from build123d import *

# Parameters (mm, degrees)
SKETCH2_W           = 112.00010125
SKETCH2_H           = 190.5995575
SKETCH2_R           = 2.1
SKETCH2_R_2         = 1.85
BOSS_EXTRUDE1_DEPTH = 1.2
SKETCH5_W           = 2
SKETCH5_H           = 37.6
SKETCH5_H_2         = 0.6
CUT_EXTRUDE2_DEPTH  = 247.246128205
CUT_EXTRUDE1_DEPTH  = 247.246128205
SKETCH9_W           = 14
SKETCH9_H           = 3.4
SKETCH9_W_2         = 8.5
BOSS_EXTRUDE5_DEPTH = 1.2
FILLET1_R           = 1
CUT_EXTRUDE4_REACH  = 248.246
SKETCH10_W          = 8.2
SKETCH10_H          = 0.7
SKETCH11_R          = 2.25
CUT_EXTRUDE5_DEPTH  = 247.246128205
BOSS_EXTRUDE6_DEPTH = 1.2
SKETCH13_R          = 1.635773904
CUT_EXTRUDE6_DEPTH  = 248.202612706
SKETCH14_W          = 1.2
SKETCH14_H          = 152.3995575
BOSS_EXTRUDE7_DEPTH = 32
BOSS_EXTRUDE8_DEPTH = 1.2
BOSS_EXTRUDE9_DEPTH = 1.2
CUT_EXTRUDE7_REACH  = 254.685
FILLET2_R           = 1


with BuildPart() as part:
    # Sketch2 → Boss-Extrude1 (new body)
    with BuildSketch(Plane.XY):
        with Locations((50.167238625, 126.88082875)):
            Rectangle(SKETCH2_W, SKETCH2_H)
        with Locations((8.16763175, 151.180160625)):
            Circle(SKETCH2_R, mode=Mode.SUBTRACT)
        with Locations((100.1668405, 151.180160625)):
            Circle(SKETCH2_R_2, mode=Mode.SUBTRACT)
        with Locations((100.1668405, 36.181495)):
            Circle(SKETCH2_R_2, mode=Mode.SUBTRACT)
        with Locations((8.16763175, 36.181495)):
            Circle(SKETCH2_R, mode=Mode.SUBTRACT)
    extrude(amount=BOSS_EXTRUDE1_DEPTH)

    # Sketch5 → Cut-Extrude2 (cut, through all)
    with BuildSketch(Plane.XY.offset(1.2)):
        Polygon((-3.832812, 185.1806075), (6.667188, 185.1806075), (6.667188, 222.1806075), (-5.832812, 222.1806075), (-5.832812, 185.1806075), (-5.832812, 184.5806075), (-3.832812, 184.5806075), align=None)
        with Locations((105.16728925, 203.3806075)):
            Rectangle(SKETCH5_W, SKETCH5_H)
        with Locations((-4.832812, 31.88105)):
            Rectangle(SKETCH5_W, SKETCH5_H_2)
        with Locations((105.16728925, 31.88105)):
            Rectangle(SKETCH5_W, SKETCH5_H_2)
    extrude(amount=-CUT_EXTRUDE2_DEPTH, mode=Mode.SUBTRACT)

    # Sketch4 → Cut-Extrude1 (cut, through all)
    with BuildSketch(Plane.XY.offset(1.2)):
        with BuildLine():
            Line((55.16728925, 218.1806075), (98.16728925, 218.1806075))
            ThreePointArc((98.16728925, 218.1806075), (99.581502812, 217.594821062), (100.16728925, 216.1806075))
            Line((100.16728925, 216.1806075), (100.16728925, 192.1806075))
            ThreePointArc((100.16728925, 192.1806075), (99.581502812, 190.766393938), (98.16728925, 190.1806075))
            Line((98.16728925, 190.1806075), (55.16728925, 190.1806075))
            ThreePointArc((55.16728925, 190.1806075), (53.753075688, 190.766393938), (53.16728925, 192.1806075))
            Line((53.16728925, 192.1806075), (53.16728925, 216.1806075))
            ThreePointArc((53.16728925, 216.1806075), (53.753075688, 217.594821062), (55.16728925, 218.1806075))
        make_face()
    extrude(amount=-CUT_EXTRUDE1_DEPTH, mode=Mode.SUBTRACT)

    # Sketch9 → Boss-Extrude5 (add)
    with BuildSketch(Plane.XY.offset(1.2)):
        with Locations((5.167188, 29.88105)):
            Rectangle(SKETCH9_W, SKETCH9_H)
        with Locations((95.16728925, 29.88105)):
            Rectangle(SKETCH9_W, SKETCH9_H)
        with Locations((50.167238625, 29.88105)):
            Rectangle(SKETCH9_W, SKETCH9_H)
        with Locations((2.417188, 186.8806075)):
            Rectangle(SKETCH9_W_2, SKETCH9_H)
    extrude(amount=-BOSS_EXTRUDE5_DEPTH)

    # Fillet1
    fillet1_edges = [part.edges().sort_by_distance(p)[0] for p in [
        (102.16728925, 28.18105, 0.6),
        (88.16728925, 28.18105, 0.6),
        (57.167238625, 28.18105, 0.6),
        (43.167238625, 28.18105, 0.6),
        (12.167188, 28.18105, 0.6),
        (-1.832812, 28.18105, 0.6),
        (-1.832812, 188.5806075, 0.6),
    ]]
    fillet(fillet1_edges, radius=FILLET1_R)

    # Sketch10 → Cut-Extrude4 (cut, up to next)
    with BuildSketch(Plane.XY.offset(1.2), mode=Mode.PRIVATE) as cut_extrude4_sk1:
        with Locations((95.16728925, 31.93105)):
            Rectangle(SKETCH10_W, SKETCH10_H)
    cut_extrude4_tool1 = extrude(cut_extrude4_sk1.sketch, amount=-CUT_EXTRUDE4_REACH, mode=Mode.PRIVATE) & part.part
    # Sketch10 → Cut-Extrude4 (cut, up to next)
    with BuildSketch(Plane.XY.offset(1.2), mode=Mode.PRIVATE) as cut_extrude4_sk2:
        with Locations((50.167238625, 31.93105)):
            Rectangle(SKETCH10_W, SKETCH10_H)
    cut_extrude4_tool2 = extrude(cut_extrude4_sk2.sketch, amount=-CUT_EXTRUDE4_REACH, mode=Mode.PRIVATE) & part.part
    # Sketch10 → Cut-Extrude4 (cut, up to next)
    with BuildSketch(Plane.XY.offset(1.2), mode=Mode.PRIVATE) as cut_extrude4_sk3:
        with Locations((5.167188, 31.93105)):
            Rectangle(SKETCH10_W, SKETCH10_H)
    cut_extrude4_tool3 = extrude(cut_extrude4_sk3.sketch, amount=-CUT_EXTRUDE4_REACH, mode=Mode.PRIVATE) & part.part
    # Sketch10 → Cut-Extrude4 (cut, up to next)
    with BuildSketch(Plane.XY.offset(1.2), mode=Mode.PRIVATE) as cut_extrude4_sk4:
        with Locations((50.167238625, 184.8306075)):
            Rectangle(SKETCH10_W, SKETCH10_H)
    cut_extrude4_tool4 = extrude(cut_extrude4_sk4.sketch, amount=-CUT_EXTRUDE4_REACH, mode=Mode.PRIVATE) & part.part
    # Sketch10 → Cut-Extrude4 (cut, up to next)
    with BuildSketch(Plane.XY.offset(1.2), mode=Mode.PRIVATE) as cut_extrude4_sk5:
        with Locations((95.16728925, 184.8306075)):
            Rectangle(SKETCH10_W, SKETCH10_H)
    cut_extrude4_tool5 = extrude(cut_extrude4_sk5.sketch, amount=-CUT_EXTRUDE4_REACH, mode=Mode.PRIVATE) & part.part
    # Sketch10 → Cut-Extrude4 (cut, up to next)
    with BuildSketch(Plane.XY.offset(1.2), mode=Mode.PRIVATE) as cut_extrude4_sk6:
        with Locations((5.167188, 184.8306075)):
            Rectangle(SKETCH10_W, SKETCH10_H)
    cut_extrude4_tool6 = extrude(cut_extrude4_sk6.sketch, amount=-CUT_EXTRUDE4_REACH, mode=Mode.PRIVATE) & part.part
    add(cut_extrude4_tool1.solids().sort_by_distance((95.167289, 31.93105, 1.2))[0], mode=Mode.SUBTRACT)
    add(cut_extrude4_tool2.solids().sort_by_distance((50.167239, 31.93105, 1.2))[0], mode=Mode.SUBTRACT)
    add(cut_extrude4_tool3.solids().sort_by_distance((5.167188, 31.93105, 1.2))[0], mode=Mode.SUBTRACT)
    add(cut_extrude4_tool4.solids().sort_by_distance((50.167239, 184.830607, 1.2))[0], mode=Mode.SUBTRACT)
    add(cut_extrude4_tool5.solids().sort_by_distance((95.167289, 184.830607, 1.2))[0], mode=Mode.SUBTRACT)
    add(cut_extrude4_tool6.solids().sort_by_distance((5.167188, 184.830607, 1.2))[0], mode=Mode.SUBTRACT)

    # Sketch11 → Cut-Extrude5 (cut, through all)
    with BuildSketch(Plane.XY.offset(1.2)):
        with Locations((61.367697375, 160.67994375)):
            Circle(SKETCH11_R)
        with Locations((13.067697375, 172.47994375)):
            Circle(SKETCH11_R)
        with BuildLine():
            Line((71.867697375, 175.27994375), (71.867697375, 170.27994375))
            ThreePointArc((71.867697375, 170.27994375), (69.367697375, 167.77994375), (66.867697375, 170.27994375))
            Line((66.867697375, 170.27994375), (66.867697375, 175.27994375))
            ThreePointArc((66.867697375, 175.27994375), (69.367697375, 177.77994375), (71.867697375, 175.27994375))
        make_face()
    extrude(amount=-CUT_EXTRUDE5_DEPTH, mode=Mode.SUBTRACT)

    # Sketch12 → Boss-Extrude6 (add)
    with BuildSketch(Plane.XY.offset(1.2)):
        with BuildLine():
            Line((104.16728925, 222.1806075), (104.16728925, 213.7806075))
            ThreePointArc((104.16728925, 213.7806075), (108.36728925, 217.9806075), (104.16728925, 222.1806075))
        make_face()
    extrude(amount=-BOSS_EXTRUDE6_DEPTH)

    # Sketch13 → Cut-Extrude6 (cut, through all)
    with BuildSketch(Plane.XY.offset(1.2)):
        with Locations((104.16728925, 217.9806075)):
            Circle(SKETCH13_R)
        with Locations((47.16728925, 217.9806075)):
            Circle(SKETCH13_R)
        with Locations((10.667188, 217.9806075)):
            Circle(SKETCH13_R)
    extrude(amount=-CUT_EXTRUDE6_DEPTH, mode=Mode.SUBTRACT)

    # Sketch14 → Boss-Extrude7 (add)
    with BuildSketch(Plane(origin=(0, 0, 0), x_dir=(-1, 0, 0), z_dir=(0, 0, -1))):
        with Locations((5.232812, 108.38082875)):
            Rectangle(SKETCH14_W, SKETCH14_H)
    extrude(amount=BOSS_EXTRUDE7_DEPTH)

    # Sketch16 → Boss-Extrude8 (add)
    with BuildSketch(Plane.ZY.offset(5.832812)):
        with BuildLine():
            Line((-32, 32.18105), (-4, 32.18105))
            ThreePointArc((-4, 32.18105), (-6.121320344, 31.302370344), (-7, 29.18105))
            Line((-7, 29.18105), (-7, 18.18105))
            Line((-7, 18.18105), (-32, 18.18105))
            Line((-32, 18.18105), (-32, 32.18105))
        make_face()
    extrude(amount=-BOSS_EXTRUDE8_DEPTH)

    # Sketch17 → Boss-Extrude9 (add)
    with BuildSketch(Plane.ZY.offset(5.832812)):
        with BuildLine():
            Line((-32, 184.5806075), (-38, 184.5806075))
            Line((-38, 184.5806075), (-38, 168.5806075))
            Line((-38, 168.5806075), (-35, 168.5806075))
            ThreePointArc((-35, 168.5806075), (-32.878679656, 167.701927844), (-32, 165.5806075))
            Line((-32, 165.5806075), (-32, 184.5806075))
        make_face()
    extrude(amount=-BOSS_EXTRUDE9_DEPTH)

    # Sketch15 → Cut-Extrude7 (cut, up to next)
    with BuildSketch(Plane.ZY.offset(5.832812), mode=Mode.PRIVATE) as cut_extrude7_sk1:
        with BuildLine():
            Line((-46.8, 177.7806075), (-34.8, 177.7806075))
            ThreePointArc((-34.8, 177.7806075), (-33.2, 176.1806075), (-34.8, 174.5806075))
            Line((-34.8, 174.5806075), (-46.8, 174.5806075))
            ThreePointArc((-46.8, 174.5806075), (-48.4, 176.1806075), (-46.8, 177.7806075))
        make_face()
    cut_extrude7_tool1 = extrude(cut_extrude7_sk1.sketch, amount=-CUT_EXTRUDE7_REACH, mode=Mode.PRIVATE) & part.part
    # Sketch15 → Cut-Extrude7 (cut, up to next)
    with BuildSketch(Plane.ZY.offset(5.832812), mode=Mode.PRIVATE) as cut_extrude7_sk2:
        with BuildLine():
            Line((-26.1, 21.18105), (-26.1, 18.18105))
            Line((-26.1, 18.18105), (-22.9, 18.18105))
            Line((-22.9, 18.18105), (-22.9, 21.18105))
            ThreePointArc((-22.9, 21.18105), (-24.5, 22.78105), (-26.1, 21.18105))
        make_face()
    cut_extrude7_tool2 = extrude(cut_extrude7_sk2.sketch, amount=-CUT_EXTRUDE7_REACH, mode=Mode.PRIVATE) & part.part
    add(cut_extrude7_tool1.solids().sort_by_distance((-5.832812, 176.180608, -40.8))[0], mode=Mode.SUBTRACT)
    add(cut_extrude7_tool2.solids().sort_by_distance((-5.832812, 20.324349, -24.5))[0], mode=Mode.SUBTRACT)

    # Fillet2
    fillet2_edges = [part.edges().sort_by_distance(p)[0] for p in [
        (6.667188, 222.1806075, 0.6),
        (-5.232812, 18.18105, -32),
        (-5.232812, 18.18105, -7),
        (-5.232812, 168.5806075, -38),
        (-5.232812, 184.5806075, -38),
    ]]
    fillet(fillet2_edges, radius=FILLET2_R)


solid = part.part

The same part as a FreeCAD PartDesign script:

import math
import FreeCAD as App
import Part
import Sketcher
from FreeCAD import Vector
Q = App.Units.Quantity


def edges_at(feature, points):
    """Names of the edges that pass closest to the given points."""
    edges = feature.Shape.Edges
    near = lambda p: min(range(len(edges)), key=lambda i: edges[i].distToShape(Part.Vertex(*p))[0])
    return sorted({f"Edge{near(p) + 1}" for p in points})

doc = App.newDocument("Part")
body = doc.addObject("PartDesign::Body", "Body")

sketch1 = doc.addObject("Sketcher::SketchObject", "Sketch")
body.addObject(sketch1)
sketch1.AttachmentSupport = (doc.XY_Plane, [""])
sketch1.MapMode = "FlatFace"
sketch1.addGeometry([
    Part.LineSegment(Vector(-5.8, 222.2, 0), Vector(-5.8, 31.6, 0)),
    Part.LineSegment(Vector(-5.8, 31.6, 0), Vector(106.2, 31.6, 0)),
    Part.LineSegment(Vector(106.2, 31.6, 0), Vector(106.2, 222.2, 0)),
    Part.LineSegment(Vector(106.2, 222.2, 0), Vector(-5.8, 222.2, 0)),
    Part.Circle(Vector(8.2, 36.2, 0), Vector(0, 0, 1), 2.1),
    Part.Circle(Vector(100.2, 36.2, 0), Vector(0, 0, 1), 1.9),
    Part.Circle(Vector(8.2, 151.2, 0), Vector(0, 0, 1), 2.1),
    Part.Circle(Vector(100.2, 151.2, 0), Vector(0, 0, 1), 1.9),
], False)
sketch1.addConstraint([
    Sketcher.Constraint("Coincident", 0, 2, 1, 1),
    Sketcher.Constraint("Coincident", 1, 2, 2, 1),
    Sketcher.Constraint("Coincident", 2, 2, 3, 1),
    Sketcher.Constraint("Coincident", 3, 2, 0, 1),
    Sketcher.Constraint("Vertical", 0),
    Sketcher.Constraint("Horizontal", 1),
    Sketcher.Constraint("Vertical", 2),
    Sketcher.Constraint("Horizontal", 3),
    Sketcher.Constraint("Equal", 4, 6),
    Sketcher.Constraint("Equal", 5, 7),
    Sketcher.Constraint("Horizontal", 4, 3, 5, 3),
    Sketcher.Constraint("Horizontal", 6, 3, 7, 3),
    Sketcher.Constraint("Vertical", 4, 3, 6, 3),
    Sketcher.Constraint("Vertical", 5, 3, 7, 3),
    Sketcher.Constraint("Diameter", 4, Q("4.2 mm")),
    Sketcher.Constraint("Diameter", 5, Q("3.7 mm")),
    Sketcher.Constraint("DistanceX", 1, 1, 1, 2, Q("112.000101 mm")),
    Sketcher.Constraint("DistanceY", 0, 2, 0, 1, Q("190.599558 mm")),
    Sketcher.Constraint("DistanceX", -1, 1, 4, 3, Q("8.167632 mm")),
    Sketcher.Constraint("DistanceX", -1, 1, 5, 3, Q("100.166841 mm")),
    Sketcher.Constraint("DistanceY", -1, 1, 6, 3, Q("151.180161 mm")),
    Sketcher.Constraint("DistanceX", 0, 2, -1, 1, Q("5.832812 mm")),
    Sketcher.Constraint("DistanceY", -1, 1, 0, 2, Q("31.58105 mm")),
    Sketcher.Constraint("DistanceY", -1, 1, 4, 3, Q("36.181495 mm")),
])
pad1 = doc.addObject("PartDesign::Pad", "Pad")
body.addObject(pad1)
pad1.Profile = sketch1
pad1.Length = 1.2

sketch2 = doc.addObject("Sketcher::SketchObject", "Sketch001")
body.addObject(sketch2)
sketch2.AttachmentSupport = (doc.XY_Plane, [""])
sketch2.MapMode = "FlatFace"
sketch2.AttachmentOffset = App.Placement(Vector(0, 0, 1.2), App.Rotation())
sketch2.addGeometry([
    Part.LineSegment(Vector(-3.8, 185.2, 0), Vector(6.7, 185.2, 0)),
    Part.LineSegment(Vector(6.7, 185.2, 0), Vector(6.7, 222.2, 0)),
    Part.LineSegment(Vector(6.7, 222.2, 0), Vector(-5.8, 222.2, 0)),
    Part.LineSegment(Vector(-5.8, 222.2, 0), Vector(-5.8, 184.6, 0)),
    Part.LineSegment(Vector(-5.8, 184.6, 0), Vector(-3.8, 184.6, 0)),
    Part.LineSegment(Vector(-3.8, 184.6, 0), Vector(-3.8, 185.2, 0)),
    Part.LineSegment(Vector(104.2, 222.2, 0), Vector(104.2, 184.6, 0)),
    Part.LineSegment(Vector(104.2, 184.6, 0), Vector(106.2, 184.6, 0)),
    Part.LineSegment(Vector(106.2, 184.6, 0), Vector(106.2, 222.2, 0)),
    Part.LineSegment(Vector(106.2, 222.2, 0), Vector(104.2, 222.2, 0)),
    Part.LineSegment(Vector(-5.8, 32.2, 0), Vector(-5.8, 31.6, 0)),
    Part.LineSegment(Vector(-5.8, 31.6, 0), Vector(-3.8, 31.6, 0)),
    Part.LineSegment(Vector(-3.8, 31.6, 0), Vector(-3.8, 32.2, 0)),
    Part.LineSegment(Vector(-3.8, 32.2, 0), Vector(-5.8, 32.2, 0)),
    Part.LineSegment(Vector(104.2, 32.2, 0), Vector(104.2, 31.6, 0)),
    Part.LineSegment(Vector(104.2, 31.6, 0), Vector(106.2, 31.6, 0)),
    Part.LineSegment(Vector(106.2, 31.6, 0), Vector(106.2, 32.2, 0)),
    Part.LineSegment(Vector(106.2, 32.2, 0), Vector(104.2, 32.2, 0)),
], False)
sketch2.addConstraint([
    Sketcher.Constraint("Coincident", 0, 2, 1, 1),
    Sketcher.Constraint("Coincident", 1, 2, 2, 1),
    Sketcher.Constraint("Coincident", 2, 2, 3, 1),
    Sketcher.Constraint("Coincident", 3, 2, 4, 1),
    Sketcher.Constraint("Coincident", 4, 2, 5, 1),
    Sketcher.Constraint("Coincident", 5, 2, 0, 1),
    Sketcher.Constraint("Coincident", 6, 2, 7, 1),
    Sketcher.Constraint("Coincident", 7, 2, 8, 1),
    Sketcher.Constraint("Coincident", 8, 2, 9, 1),
    Sketcher.Constraint("Coincident", 9, 2, 6, 1),
    Sketcher.Constraint("Coincident", 10, 2, 11, 1),
    Sketcher.Constraint("Coincident", 11, 2, 12, 1),
    Sketcher.Constraint("Coincident", 12, 2, 13, 1),
    Sketcher.Constraint("Coincident", 13, 2, 10, 1),
    Sketcher.Constraint("Coincident", 14, 2, 15, 1),
    Sketcher.Constraint("Coincident", 15, 2, 16, 1),
    Sketcher.Constraint("Coincident", 16, 2, 17, 1),
    Sketcher.Constraint("Coincident", 17, 2, 14, 1),
    Sketcher.Constraint("Horizontal", 0),
    Sketcher.Constraint("Vertical", 1),
    Sketcher.Constraint("Horizontal", 2),
    Sketcher.Constraint("Vertical", 3),
    Sketcher.Constraint("Horizontal", 4),
    Sketcher.Constraint("Vertical", 5),
    Sketcher.Constraint("Vertical", 6),
    Sketcher.Constraint("Horizontal", 7),
    Sketcher.Constraint("Vertical", 8),
    Sketcher.Constraint("Horizontal", 9),
    Sketcher.Constraint("Vertical", 10),
    Sketcher.Constraint("Horizontal", 11),
    Sketcher.Constraint("Vertical", 12),
    Sketcher.Constraint("Horizontal", 13),
    Sketcher.Constraint("Vertical", 14),
    Sketcher.Constraint("Horizontal", 15),
    Sketcher.Constraint("Vertical", 16),
    Sketcher.Constraint("Horizontal", 17),
    Sketcher.Constraint("Horizontal", 4, 2, 6, 2),
    Sketcher.Constraint("Horizontal", 2, 2, 8, 2),
    Sketcher.Constraint("Horizontal", 11, 2, 14, 2),
    Sketcher.Constraint("Horizontal", 13, 2, 16, 2),
    Sketcher.Constraint("Vertical", 3, 2, 10, 2),
    Sketcher.Constraint("Vertical", 5, 2, 11, 2),
    Sketcher.Constraint("Vertical", 9, 2, 14, 2),
    Sketcher.Constraint("Vertical", 8, 2, 15, 2),
    Sketcher.Constraint("Equal", 4, 7),
    Sketcher.Constraint("Equal", 5, 10),
    Sketcher.Constraint("DistanceX", 4, 1, 4, 2, Q("2 mm")),
    Sketcher.Constraint("DistanceY", 1, 1, 1, 2, Q("37 mm")),
    Sketcher.Constraint("DistanceX", 0, 1, 0, 2, Q("10.5 mm")),
    Sketcher.Constraint("DistanceY", 3, 2, 3, 1, Q("37.6 mm")),
    Sketcher.Constraint("DistanceX", 0, 2, 6, 2, Q("97.500101 mm")),
    Sketcher.Constraint("DistanceX", -1, 1, 0, 2, Q("6.667188 mm")),
    Sketcher.Constraint("DistanceY", -1, 1, 10, 2, Q("31.58105 mm")),
    Sketcher.Constraint("DistanceY", -1, 1, 0, 2, Q("185.180608 mm")),
])
pocket1 = doc.addObject("PartDesign::Pocket", "Pocket")
body.addObject(pocket1)
pocket1.Profile = sketch2
pocket1.Type = "ThroughAll"

sketch3 = doc.addObject("Sketcher::SketchObject", "Sketch002")
body.addObject(sketch3)
sketch3.AttachmentSupport = (doc.XY_Plane, [""])
sketch3.MapMode = "FlatFace"
sketch3.AttachmentOffset = App.Placement(Vector(0, 0, 1.2), App.Rotation())
sketch3.addGeometry([
    Part.LineSegment(Vector(98.2, 218.2, 0), Vector(55.2, 218.2, 0)),
    Part.ArcOfCircle(Part.Circle(Vector(55.2, 216.2, 0), Vector(0, 0, 1), 2), math.radians(90), math.radians(180)),
    Part.LineSegment(Vector(53.2, 216.2, 0), Vector(53.2, 192.2, 0)),
    Part.ArcOfCircle(Part.Circle(Vector(55.2, 192.2, 0), Vector(0, 0, 1), 2), math.radians(-180), math.radians(-90)),
    Part.LineSegment(Vector(55.2, 190.2, 0), Vector(98.2, 190.2, 0)),
    Part.ArcOfCircle(Part.Circle(Vector(98.2, 192.2, 0), Vector(0, 0, 1), 2), math.radians(-90), math.radians(0)),
    Part.LineSegment(Vector(100.2, 192.2, 0), Vector(100.2, 216.2, 0)),
    Part.ArcOfCircle(Part.Circle(Vector(98.2, 216.2, 0), Vector(0, 0, 1), 2), math.radians(0), math.radians(90)),
], False)
sketch3.addConstraint([
    Sketcher.Constraint("Tangent", 0, 2, 1, 1),
    Sketcher.Constraint("Tangent", 1, 2, 2, 1),
    Sketcher.Constraint("Tangent", 2, 2, 3, 1),
    Sketcher.Constraint("Tangent", 3, 2, 4, 1),
    Sketcher.Constraint("Tangent", 4, 2, 5, 1),
    Sketcher.Constraint("Tangent", 5, 2, 6, 1),
    Sketcher.Constraint("Tangent", 6, 2, 7, 1),
    Sketcher.Constraint("Tangent", 7, 2, 0, 1),
    Sketcher.Constraint("Horizontal", 0),
    Sketcher.Constraint("Vertical", 2),
    Sketcher.Constraint("Horizontal", 4),
    Sketcher.Constraint("Vertical", 6),
    Sketcher.Constraint("Equal", 1, 3),
    Sketcher.Constraint("Equal", 3, 5),
    Sketcher.Constraint("Equal", 5, 7),
    Sketcher.Constraint("Radius", 1, Q("2 mm")),
    Sketcher.Constraint("DistanceX", 0, 2, 0, 1, Q("43 mm")),
    Sketcher.Constraint("DistanceY", 2, 2, 2, 1, Q("24 mm")),
    Sketcher.Constraint("DistanceX", -1, 1, 1, 3, Q("55.167289 mm")),
    Sketcher.Constraint("DistanceY", -1, 1, 1, 3, Q("216.180607 mm")),
])
pocket2 = doc.addObject("PartDesign::Pocket", "Pocket001")
body.addObject(pocket2)
pocket2.Profile = sketch3
pocket2.Type = "ThroughAll"

sketch4 = doc.addObject("Sketcher::SketchObject", "Sketch003")
body.addObject(sketch4)
sketch4.AttachmentSupport = (doc.XY_Plane, [""])
sketch4.MapMode = "FlatFace"
sketch4.AttachmentOffset = App.Placement(Vector(0, 0, 1.2), App.Rotation())
sketch4.addGeometry([
    Part.LineSegment(Vector(-1.8, 31.6, 0), Vector(-1.8, 28.2, 0)),
    Part.LineSegment(Vector(-1.8, 28.2, 0), Vector(12.2, 28.2, 0)),
    Part.LineSegment(Vector(12.2, 28.2, 0), Vector(12.2, 31.6, 0)),
    Part.LineSegment(Vector(12.2, 31.6, 0), Vector(-1.8, 31.6, 0)),
    Part.LineSegment(Vector(88.2, 31.6, 0), Vector(88.2, 28.2, 0)),
    Part.LineSegment(Vector(88.2, 28.2, 0), Vector(102.2, 28.2, 0)),
    Part.LineSegment(Vector(102.2, 28.2, 0), Vector(102.2, 31.6, 0)),
    Part.LineSegment(Vector(102.2, 31.6, 0), Vector(88.2, 31.6, 0)),
    Part.LineSegment(Vector(43.2, 31.6, 0), Vector(43.2, 28.2, 0)),
    Part.LineSegment(Vector(43.2, 28.2, 0), Vector(57.2, 28.2, 0)),
    Part.LineSegment(Vector(57.2, 28.2, 0), Vector(57.2, 31.6, 0)),
    Part.LineSegment(Vector(57.2, 31.6, 0), Vector(43.2, 31.6, 0)),
    Part.LineSegment(Vector(-1.8, 188.6, 0), Vector(-1.8, 185.2, 0)),
    Part.LineSegment(Vector(-1.8, 185.2, 0), Vector(6.7, 185.2, 0)),
    Part.LineSegment(Vector(6.7, 185.2, 0), Vector(6.7, 188.6, 0)),
    Part.LineSegment(Vector(6.7, 188.6, 0), Vector(-1.8, 188.6, 0)),
], False)
sketch4.addConstraint([
    Sketcher.Constraint("Coincident", 0, 2, 1, 1),
    Sketcher.Constraint("Coincident", 1, 2, 2, 1),
    Sketcher.Constraint("Coincident", 2, 2, 3, 1),
    Sketcher.Constraint("Coincident", 3, 2, 0, 1),
    Sketcher.Constraint("Coincident", 4, 2, 5, 1),
    Sketcher.Constraint("Coincident", 5, 2, 6, 1),
    Sketcher.Constraint("Coincident", 6, 2, 7, 1),
    Sketcher.Constraint("Coincident", 7, 2, 4, 1),
    Sketcher.Constraint("Coincident", 8, 2, 9, 1),
    Sketcher.Constraint("Coincident", 9, 2, 10, 1),
    Sketcher.Constraint("Coincident", 10, 2, 11, 1),
    Sketcher.Constraint("Coincident", 11, 2, 8, 1),
    Sketcher.Constraint("Coincident", 12, 2, 13, 1),
    Sketcher.Constraint("Coincident", 13, 2, 14, 1),
    Sketcher.Constraint("Coincident", 14, 2, 15, 1),
    Sketcher.Constraint("Coincident", 15, 2, 12, 1),
    Sketcher.Constraint("Vertical", 0),
    Sketcher.Constraint("Horizontal", 1),
    Sketcher.Constraint("Vertical", 2),
    Sketcher.Constraint("Horizontal", 3),
    Sketcher.Constraint("Vertical", 4),
    Sketcher.Constraint("Horizontal", 5),
    Sketcher.Constraint("Vertical", 6),
    Sketcher.Constraint("Horizontal", 7),
    Sketcher.Constraint("Vertical", 8),
    Sketcher.Constraint("Horizontal", 9),
    Sketcher.Constraint("Vertical", 10),
    Sketcher.Constraint("Horizontal", 11),
    Sketcher.Constraint("Vertical", 12),
    Sketcher.Constraint("Horizontal", 13),
    Sketcher.Constraint("Vertical", 14),
    Sketcher.Constraint("Horizontal", 15),
    Sketcher.Constraint("Horizontal", 1, 2, 4, 2),
    Sketcher.Constraint("Horizontal", 3, 2, 6, 2),
    Sketcher.Constraint("Horizontal", 5, 2, 8, 2),
    Sketcher.Constraint("Horizontal", 7, 2, 10, 2),
    Sketcher.Constraint("Vertical", 3, 2, 12, 2),
    Sketcher.Constraint("Equal", 3, 5),
    Sketcher.Constraint("Equal", 7, 9),
    Sketcher.Constraint("Equal", 10, 12),
    Sketcher.Constraint("DistanceX", 1, 1, 1, 2, Q("14 mm")),
    Sketcher.Constraint("DistanceX", 13, 1, 13, 2, Q("8.5 mm")),
    Sketcher.Constraint("DistanceY", 0, 2, 0, 1, Q("3.4 mm")),
    Sketcher.Constraint("DistanceX", 1, 2, 4, 2, Q("76.000101 mm")),
    Sketcher.Constraint("DistanceY", -1, 1, 0, 2, Q("28.18105 mm")),
    Sketcher.Constraint("DistanceX", -1, 1, 4, 2, Q("88.167289 mm")),
    Sketcher.Constraint("DistanceX", -1, 1, 8, 2, Q("43.167239 mm")),
    Sketcher.Constraint("DistanceY", -1, 1, 12, 2, Q("185.180608 mm")),
])
pad2 = doc.addObject("PartDesign::Pad", "Pad001")
body.addObject(pad2)
pad2.Profile = sketch4
pad2.Length = 1.2
pad2.Reversed = True
doc.recompute()

fillet = doc.addObject("PartDesign::Fillet", "Fillet")
body.addObject(fillet)
fillet.Base = (pad2, edges_at(pad2, [
    (102.167, 28.181, 0.6),
    (88.167, 28.181, 0.6),
    (57.167, 28.181, 0.6),
    (43.167, 28.181, 0.6),
    (12.167, 28.181, 0.6),
    (-1.833, 28.181, 0.6),
    (-1.833, 188.581, 0.6),
]))
fillet.Radius = 1

sketch5 = doc.addObject("Sketcher::SketchObject", "Sketch004")
body.addObject(sketch5)
sketch5.AttachmentSupport = (doc.XY_Plane, [""])
sketch5.MapMode = "FlatFace"
sketch5.AttachmentOffset = App.Placement(Vector(0, 0, 1.2), App.Rotation())
sketch5.addGeometry([
    Part.LineSegment(Vector(91.1, 32.3, 0), Vector(91.1, 31.6, 0)),
    Part.LineSegment(Vector(91.1, 31.6, 0), Vector(99.3, 31.6, 0)),
    Part.LineSegment(Vector(99.3, 31.6, 0), Vector(99.3, 32.3, 0)),
    Part.LineSegment(Vector(99.3, 32.3, 0), Vector(91.1, 32.3, 0)),
], False)
sketch5.addConstraint([
    Sketcher.Constraint("Coincident", 0, 2, 1, 1),
    Sketcher.Constraint("Coincident", 1, 2, 2, 1),
    Sketcher.Constraint("Coincident", 2, 2, 3, 1),
    Sketcher.Constraint("Coincident", 3, 2, 0, 1),
    Sketcher.Constraint("Vertical", 0),
    Sketcher.Constraint("Horizontal", 1),
    Sketcher.Constraint("Vertical", 2),
    Sketcher.Constraint("Horizontal", 3),
    Sketcher.Constraint("DistanceX", 1, 1, 1, 2, Q("8.2 mm")),
    Sketcher.Constraint("DistanceY", 0, 2, 0, 1, Q("0.7 mm")),
    Sketcher.Constraint("DistanceX", -1, 1, 0, 2, Q("91.067289 mm")),
    Sketcher.Constraint("DistanceY", -1, 1, 0, 2, Q("31.58105 mm")),
])
pocket3 = doc.addObject("PartDesign::Pocket", "Pocket002")
body.addObject(pocket3)
pocket3.Profile = sketch5
pocket3.Type = "UpToFirst"

sketch6 = doc.addObject("Sketcher::SketchObject", "Sketch005")
body.addObject(sketch6)
sketch6.AttachmentSupport = (doc.XY_Plane, [""])
sketch6.MapMode = "FlatFace"
sketch6.AttachmentOffset = App.Placement(Vector(0, 0, 1.2), App.Rotation())
sketch6.addGeometry([
    Part.LineSegment(Vector(46.1, 32.3, 0), Vector(46.1, 31.6, 0)),
    Part.LineSegment(Vector(46.1, 31.6, 0), Vector(54.3, 31.6, 0)),
    Part.LineSegment(Vector(54.3, 31.6, 0), Vector(54.3, 32.3, 0)),
    Part.LineSegment(Vector(54.3, 32.3, 0), Vector(46.1, 32.3, 0)),
], False)
sketch6.addConstraint([
    Sketcher.Constraint("Coincident", 0, 2, 1, 1),
    Sketcher.Constraint("Coincident", 1, 2, 2, 1),
    Sketcher.Constraint("Coincident", 2, 2, 3, 1),
    Sketcher.Constraint("Coincident", 3, 2, 0, 1),
    Sketcher.Constraint("Vertical", 0),
    Sketcher.Constraint("Horizontal", 1),
    Sketcher.Constraint("Vertical", 2),
    Sketcher.Constraint("Horizontal", 3),
    Sketcher.Constraint("DistanceX", 1, 1, 1, 2, Q("8.2 mm")),
    Sketcher.Constraint("DistanceY", 0, 2, 0, 1, Q("0.7 mm")),
    Sketcher.Constraint("DistanceX", -1, 1, 0, 2, Q("46.067239 mm")),
    Sketcher.Constraint("DistanceY", -1, 1, 0, 2, Q("31.58105 mm")),
])
pocket4 = doc.addObject("PartDesign::Pocket", "Pocket003")
body.addObject(pocket4)
pocket4.Profile = sketch6
pocket4.Type = "UpToFirst"

sketch7 = doc.addObject("Sketcher::SketchObject", "Sketch006")
body.addObject(sketch7)
sketch7.AttachmentSupport = (doc.XY_Plane, [""])
sketch7.MapMode = "FlatFace"
sketch7.AttachmentOffset = App.Placement(Vector(0, 0, 1.2), App.Rotation())
sketch7.addGeometry([
    Part.LineSegment(Vector(1.1, 32.3, 0), Vector(1.1, 31.6, 0)),
    Part.LineSegment(Vector(1.1, 31.6, 0), Vector(9.3, 31.6, 0)),
    Part.LineSegment(Vector(9.3, 31.6, 0), Vector(9.3, 32.3, 0)),
    Part.LineSegment(Vector(9.3, 32.3, 0), Vector(1.1, 32.3, 0)),
], False)
sketch7.addConstraint([
    Sketcher.Constraint("Coincident", 0, 2, 1, 1),
    Sketcher.Constraint("Coincident", 1, 2, 2, 1),
    Sketcher.Constraint("Coincident", 2, 2, 3, 1),
    Sketcher.Constraint("Coincident", 3, 2, 0, 1),
    Sketcher.Constraint("Vertical", 0),
    Sketcher.Constraint("Horizontal", 1),
    Sketcher.Constraint("Vertical", 2),
    Sketcher.Constraint("Horizontal", 3),
    Sketcher.Constraint("DistanceX", 1, 1, 1, 2, Q("8.2 mm")),
    Sketcher.Constraint("DistanceY", 0, 2, 0, 1, Q("0.7 mm")),
    Sketcher.Constraint("DistanceY", -1, 1, 0, 2, Q("31.58105 mm")),
    Sketcher.Constraint("DistanceX", -1, 1, 1, 2, Q("9.267188 mm")),
])
pocket5 = doc.addObject("PartDesign::Pocket", "Pocket004")
body.addObject(pocket5)
pocket5.Profile = sketch7
pocket5.Type = "UpToFirst"

sketch8 = doc.addObject("Sketcher::SketchObject", "Sketch007")
body.addObject(sketch8)
sketch8.AttachmentSupport = (doc.XY_Plane, [""])
sketch8.MapMode = "FlatFace"
sketch8.AttachmentOffset = App.Placement(Vector(0, 0, 1.2), App.Rotation())
sketch8.addGeometry([
    Part.LineSegment(Vector(46.1, 185.2, 0), Vector(46.1, 184.5, 0)),
    Part.LineSegment(Vector(46.1, 184.5, 0), Vector(54.3, 184.5, 0)),
    Part.LineSegment(Vector(54.3, 184.5, 0), Vector(54.3, 185.2, 0)),
    Part.LineSegment(Vector(54.3, 185.2, 0), Vector(46.1, 185.2, 0)),
], False)
sketch8.addConstraint([
    Sketcher.Constraint("Coincident", 0, 2, 1, 1),
    Sketcher.Constraint("Coincident", 1, 2, 2, 1),
    Sketcher.Constraint("Coincident", 2, 2, 3, 1),
    Sketcher.Constraint("Coincident", 3, 2, 0, 1),
    Sketcher.Constraint("Vertical", 0),
    Sketcher.Constraint("Horizontal", 1),
    Sketcher.Constraint("Vertical", 2),
    Sketcher.Constraint("Horizontal", 3),
    Sketcher.Constraint("DistanceX", 1, 1, 1, 2, Q("8.2 mm")),
    Sketcher.Constraint("DistanceY", 0, 2, 0, 1, Q("0.7 mm")),
    Sketcher.Constraint("DistanceX", -1, 1, 0, 2, Q("46.067239 mm")),
    Sketcher.Constraint("DistanceY", -1, 1, 0, 2, Q("184.480607 mm")),
])
pocket6 = doc.addObject("PartDesign::Pocket", "Pocket005")
body.addObject(pocket6)
pocket6.Profile = sketch8
pocket6.Type = "UpToFirst"

sketch9 = doc.addObject("Sketcher::SketchObject", "Sketch008")
body.addObject(sketch9)
sketch9.AttachmentSupport = (doc.XY_Plane, [""])
sketch9.MapMode = "FlatFace"
sketch9.AttachmentOffset = App.Placement(Vector(0, 0, 1.2), App.Rotation())
sketch9.addGeometry([
    Part.LineSegment(Vector(91.1, 185.2, 0), Vector(91.1, 184.5, 0)),
    Part.LineSegment(Vector(91.1, 184.5, 0), Vector(99.3, 184.5, 0)),
    Part.LineSegment(Vector(99.3, 184.5, 0), Vector(99.3, 185.2, 0)),
    Part.LineSegment(Vector(99.3, 185.2, 0), Vector(91.1, 185.2, 0)),
], False)
sketch9.addConstraint([
    Sketcher.Constraint("Coincident", 0, 2, 1, 1),
    Sketcher.Constraint("Coincident", 1, 2, 2, 1),
    Sketcher.Constraint("Coincident", 2, 2, 3, 1),
    Sketcher.Constraint("Coincident", 3, 2, 0, 1),
    Sketcher.Constraint("Vertical", 0),
    Sketcher.Constraint("Horizontal", 1),
    Sketcher.Constraint("Vertical", 2),
    Sketcher.Constraint("Horizontal", 3),
    Sketcher.Constraint("DistanceX", 1, 1, 1, 2, Q("8.2 mm")),
    Sketcher.Constraint("DistanceY", 0, 2, 0, 1, Q("0.7 mm")),
    Sketcher.Constraint("DistanceX", -1, 1, 0, 2, Q("91.067289 mm")),
    Sketcher.Constraint("DistanceY", -1, 1, 0, 2, Q("184.480607 mm")),
])
pocket7 = doc.addObject("PartDesign::Pocket", "Pocket006")
body.addObject(pocket7)
pocket7.Profile = sketch9
pocket7.Type = "UpToFirst"

sketch10 = doc.addObject("Sketcher::SketchObject", "Sketch009")
body.addObject(sketch10)
sketch10.AttachmentSupport = (doc.XY_Plane, [""])
sketch10.MapMode = "FlatFace"
sketch10.AttachmentOffset = App.Placement(Vector(0, 0, 1.2), App.Rotation())
sketch10.addGeometry([
    Part.LineSegment(Vector(1.1, 185.2, 0), Vector(1.1, 184.5, 0)),
    Part.LineSegment(Vector(1.1, 184.5, 0), Vector(9.3, 184.5, 0)),
    Part.LineSegment(Vector(9.3, 184.5, 0), Vector(9.3, 185.2, 0)),
    Part.LineSegment(Vector(9.3, 185.2, 0), Vector(1.1, 185.2, 0)),
], False)
sketch10.addConstraint([
    Sketcher.Constraint("Coincident", 0, 2, 1, 1),
    Sketcher.Constraint("Coincident", 1, 2, 2, 1),
    Sketcher.Constraint("Coincident", 2, 2, 3, 1),
    Sketcher.Constraint("Coincident", 3, 2, 0, 1),
    Sketcher.Constraint("Vertical", 0),
    Sketcher.Constraint("Horizontal", 1),
    Sketcher.Constraint("Vertical", 2),
    Sketcher.Constraint("Horizontal", 3),
    Sketcher.Constraint("DistanceX", 1, 1, 1, 2, Q("8.2 mm")),
    Sketcher.Constraint("DistanceY", 0, 2, 0, 1, Q("0.7 mm")),
    Sketcher.Constraint("DistanceX", -1, 1, 1, 2, Q("9.267188 mm")),
    Sketcher.Constraint("DistanceY", -1, 1, 0, 2, Q("184.480607 mm")),
])
pocket8 = doc.addObject("PartDesign::Pocket", "Pocket007")
body.addObject(pocket8)
pocket8.Profile = sketch10
pocket8.Type = "UpToFirst"

sketch11 = doc.addObject("Sketcher::SketchObject", "Sketch010")
body.addObject(sketch11)
sketch11.AttachmentSupport = (doc.XY_Plane, [""])
sketch11.MapMode = "FlatFace"
sketch11.AttachmentOffset = App.Placement(Vector(0, 0, 1.2), App.Rotation())
sketch11.addGeometry([
    Part.Circle(Vector(61.4, 160.7, 0), Vector(0, 0, 1), 2.2),
    Part.Circle(Vector(13.1, 172.5, 0), Vector(0, 0, 1), 2.2),
    Part.LineSegment(Vector(71.9, 170.3, 0), Vector(71.9, 175.3, 0)),
    Part.ArcOfCircle(Part.Circle(Vector(69.4, 175.3, 0), Vector(0, 0, 1), 2.5), math.radians(0), math.radians(180)),
    Part.LineSegment(Vector(66.9, 175.3, 0), Vector(66.9, 170.3, 0)),
    Part.ArcOfCircle(Part.Circle(Vector(69.4, 170.3, 0), Vector(0, 0, 1), 2.5), math.radians(180), math.radians(360)),
], False)
sketch11.addConstraint([
    Sketcher.Constraint("Tangent", 2, 2, 3, 1),
    Sketcher.Constraint("Tangent", 3, 2, 4, 1),
    Sketcher.Constraint("Tangent", 4, 2, 5, 1),
    Sketcher.Constraint("Tangent", 5, 2, 2, 1),
    Sketcher.Constraint("Vertical", 2),
    Sketcher.Constraint("Vertical", 4),
    Sketcher.Constraint("Equal", 0, 1),
    Sketcher.Constraint("Diameter", 0, Q("4.5 mm")),
    Sketcher.Constraint("Radius", 3, Q("2.5 mm")),
    Sketcher.Constraint("DistanceY", 2, 1, 2, 2, Q("5 mm")),
    Sketcher.Constraint("DistanceX", 0, 3, 3, 3, Q("8 mm")),
    Sketcher.Constraint("DistanceX", 1, 3, 0, 3, Q("48.3 mm")),
    Sketcher.Constraint("DistanceY", 0, 3, 1, 3, Q("11.8 mm")),
    Sketcher.Constraint("DistanceY", 0, 3, 3, 3, Q("14.6 mm")),
    Sketcher.Constraint("DistanceX", -1, 1, 0, 3, Q("61.367697 mm")),
    Sketcher.Constraint("DistanceY", -1, 1, 0, 3, Q("160.679944 mm")),
])
pocket9 = doc.addObject("PartDesign::Pocket", "Pocket008")
body.addObject(pocket9)
pocket9.Profile = sketch11
pocket9.Type = "ThroughAll"

sketch12 = doc.addObject("Sketcher::SketchObject", "Sketch011")
body.addObject(sketch12)
sketch12.AttachmentSupport = (doc.XY_Plane, [""])
sketch12.MapMode = "FlatFace"
sketch12.AttachmentOffset = App.Placement(Vector(0, 0, 1.2), App.Rotation())
sketch12.addGeometry([
    Part.LineSegment(Vector(104.2, 222.2, 0), Vector(104.2, 213.8, 0)),
    Part.ArcOfCircle(Part.Circle(Vector(104.2, 218, 0), Vector(0, 0, 1), 4.2), math.radians(-90), math.radians(90)),
], False)
sketch12.addConstraint([
    Sketcher.Constraint("Coincident", 0, 1, 1, 2),
    Sketcher.Constraint("Coincident", 1, 1, 0, 2),
    Sketcher.Constraint("Vertical", 0),
    Sketcher.Constraint("Vertical", 1, 3, 0, 1),
    Sketcher.Constraint("Radius", 1, Q("4.2 mm")),
    Sketcher.Constraint("DistanceX", -1, 1, 1, 3, Q("104.167289 mm")),
    Sketcher.Constraint("DistanceY", -1, 1, 1, 3, Q("217.980607 mm")),
])
pad3 = doc.addObject("PartDesign::Pad", "Pad002")
body.addObject(pad3)
pad3.Profile = sketch12
pad3.Length = 1.2
pad3.Reversed = True

sketch13 = doc.addObject("Sketcher::SketchObject", "Sketch012")
body.addObject(sketch13)
sketch13.AttachmentSupport = (doc.XY_Plane, [""])
sketch13.MapMode = "FlatFace"
sketch13.AttachmentOffset = App.Placement(Vector(0, 0, 1.2), App.Rotation())
sketch13.addGeometry([
    Part.Circle(Vector(104.2, 218, 0), Vector(0, 0, 1), 1.6),
    Part.Circle(Vector(47.2, 218, 0), Vector(0, 0, 1), 1.6),
    Part.Circle(Vector(10.7, 218, 0), Vector(0, 0, 1), 1.6),
], False)
sketch13.addConstraint([
    Sketcher.Constraint("Equal", 0, 1),
    Sketcher.Constraint("Equal", 1, 2),
    Sketcher.Constraint("Horizontal", 0, 3, 1, 3),
    Sketcher.Constraint("Horizontal", 1, 3, 2, 3),
    Sketcher.Constraint("DistanceX", 1, 3, 0, 3, Q("57 mm")),
    Sketcher.Constraint("Diameter", 0, Q("3.271548 mm")),
    Sketcher.Constraint("DistanceX", 2, 3, 1, 3, Q("36.500101 mm")),
    Sketcher.Constraint("DistanceX", -1, 1, 0, 3, Q("104.167289 mm")),
    Sketcher.Constraint("DistanceY", -1, 1, 0, 3, Q("217.980607 mm")),
])
pocket10 = doc.addObject("PartDesign::Pocket", "Pocket009")
body.addObject(pocket10)
pocket10.Profile = sketch13
pocket10.Type = "ThroughAll"

sketch14 = doc.addObject("Sketcher::SketchObject", "Sketch013")
body.addObject(sketch14)
sketch14.AttachmentSupport = (doc.XY_Plane, [""])
sketch14.MapMode = "FlatFace"
sketch14.addGeometry([
    Part.LineSegment(Vector(-4.6, 184.6, 0), Vector(-4.6, 32.2, 0)),
    Part.LineSegment(Vector(-4.6, 32.2, 0), Vector(-5.8, 32.2, 0)),
    Part.LineSegment(Vector(-5.8, 32.2, 0), Vector(-5.8, 184.6, 0)),
    Part.LineSegment(Vector(-5.8, 184.6, 0), Vector(-4.6, 184.6, 0)),
], False)
sketch14.addConstraint([
    Sketcher.Constraint("Coincident", 0, 2, 1, 1),
    Sketcher.Constraint("Coincident", 1, 2, 2, 1),
    Sketcher.Constraint("Coincident", 2, 2, 3, 1),
    Sketcher.Constraint("Coincident", 3, 2, 0, 1),
    Sketcher.Constraint("Vertical", 0),
    Sketcher.Constraint("Horizontal", 1),
    Sketcher.Constraint("Vertical", 2),
    Sketcher.Constraint("Horizontal", 3),
    Sketcher.Constraint("DistanceX", 1, 2, 1, 1, Q("1.2 mm")),
    Sketcher.Constraint("DistanceY", 0, 2, 0, 1, Q("152.399558 mm")),
    Sketcher.Constraint("DistanceY", -1, 1, 0, 2, Q("32.18105 mm")),
    Sketcher.Constraint("DistanceX", 1, 2, -1, 1, Q("5.832812 mm")),
])
pad4 = doc.addObject("PartDesign::Pad", "Pad003")
body.addObject(pad4)
pad4.Profile = sketch14
pad4.Length = 32
pad4.Reversed = True

sketch15 = doc.addObject("Sketcher::SketchObject", "Sketch014")
body.addObject(sketch15)
sketch15.AttachmentSupport = (doc.YZ_Plane, [""])
sketch15.MapMode = "FlatFace"
sketch15.AttachmentOffset = App.Placement(Vector(0, 0, -5.832812), App.Rotation())
sketch15.addGeometry([
    Part.LineSegment(Vector(32.2, -4, 0), Vector(32.2, -32, 0)),
    Part.LineSegment(Vector(32.2, -32, 0), Vector(18.2, -32, 0)),
    Part.LineSegment(Vector(18.2, -32, 0), Vector(18.2, -7, 0)),
    Part.LineSegment(Vector(18.2, -7, 0), Vector(29.2, -7, 0)),
    Part.ArcOfCircle(Part.Circle(Vector(29.2, -4, 0), Vector(0, 0, 1), 3), math.radians(-90), math.radians(0)),
], False)
sketch15.addConstraint([
    Sketcher.Constraint("Coincident", 0, 2, 1, 1),
    Sketcher.Constraint("Coincident", 1, 2, 2, 1),
    Sketcher.Constraint("Coincident", 2, 2, 3, 1),
    Sketcher.Constraint("Tangent", 3, 2, 4, 1),
    Sketcher.Constraint("Tangent", 4, 2, 0, 1),
    Sketcher.Constraint("Vertical", 0),
    Sketcher.Constraint("Horizontal", 1),
    Sketcher.Constraint("Vertical", 2),
    Sketcher.Constraint("Horizontal", 3),
    Sketcher.Constraint("Radius", 4, Q("3 mm")),
    Sketcher.Constraint("DistanceX", 1, 2, 1, 1, Q("14 mm")),
    Sketcher.Constraint("DistanceY", 0, 2, 0, 1, Q("28 mm")),
    Sketcher.Constraint("DistanceY", 4, 3, -1, 1, Q("4 mm")),
    Sketcher.Constraint("DistanceX", -1, 1, 4, 3, Q("29.18105 mm")),
])
pad5 = doc.addObject("PartDesign::Pad", "Pad004")
body.addObject(pad5)
pad5.Profile = sketch15
pad5.Length = 1.2

sketch16 = doc.addObject("Sketcher::SketchObject", "Sketch015")
body.addObject(sketch16)
sketch16.AttachmentSupport = (doc.YZ_Plane, [""])
sketch16.MapMode = "FlatFace"
sketch16.AttachmentOffset = App.Placement(Vector(0, 0, -5.832812), App.Rotation())
sketch16.addGeometry([
    Part.LineSegment(Vector(184.6, -32, 0), Vector(184.6, -38, 0)),
    Part.LineSegment(Vector(184.6, -38, 0), Vector(168.6, -38, 0)),
    Part.LineSegment(Vector(168.6, -38, 0), Vector(168.6, -35, 0)),
    Part.ArcOfCircle(Part.Circle(Vector(165.6, -35, 0), Vector(0, 0, 1), 3), math.radians(0), math.radians(90)),
    Part.LineSegment(Vector(165.6, -32, 0), Vector(184.6, -32, 0)),
], False)
sketch16.addConstraint([
    Sketcher.Constraint("Coincident", 0, 2, 1, 1),
    Sketcher.Constraint("Coincident", 1, 2, 2, 1),
    Sketcher.Constraint("Tangent", 2, 2, 3, 1),
    Sketcher.Constraint("Tangent", 3, 2, 4, 1),
    Sketcher.Constraint("Coincident", 4, 2, 0, 1),
    Sketcher.Constraint("Vertical", 0),
    Sketcher.Constraint("Horizontal", 1),
    Sketcher.Constraint("Vertical", 2),
    Sketcher.Constraint("Horizontal", 4),
    Sketcher.Constraint("Radius", 3, Q("3 mm")),
    Sketcher.Constraint("DistanceX", 1, 2, 1, 1, Q("16 mm")),
    Sketcher.Constraint("DistanceY", 0, 2, 0, 1, Q("6 mm")),
    Sketcher.Constraint("DistanceY", 3, 3, -1, 1, Q("35 mm")),
    Sketcher.Constraint("DistanceX", -1, 1, 3, 3, Q("165.580608 mm")),
])
pad6 = doc.addObject("PartDesign::Pad", "Pad005")
body.addObject(pad6)
pad6.Profile = sketch16
pad6.Length = 1.2

sketch17 = doc.addObject("Sketcher::SketchObject", "Sketch016")
body.addObject(sketch17)
sketch17.AttachmentSupport = (doc.YZ_Plane, [""])
sketch17.MapMode = "FlatFace"
sketch17.AttachmentOffset = App.Placement(Vector(0, 0, -5.832812), App.Rotation())
sketch17.addGeometry([
    Part.LineSegment(Vector(177.8, -34.8, 0), Vector(177.8, -46.8, 0)),
    Part.ArcOfCircle(Part.Circle(Vector(176.2, -46.8, 0), Vector(0, 0, 1), 1.6), math.radians(180), math.radians(360)),
    Part.LineSegment(Vector(174.6, -46.8, 0), Vector(174.6, -34.8, 0)),
    Part.ArcOfCircle(Part.Circle(Vector(176.2, -34.8, 0), Vector(0, 0, 1), 1.6), math.radians(0), math.radians(180)),
], False)
sketch17.addConstraint([
    Sketcher.Constraint("Tangent", 0, 2, 1, 2),
    Sketcher.Constraint("Tangent", 1, 1, 2, 1),
    Sketcher.Constraint("Tangent", 2, 2, 3, 2),
    Sketcher.Constraint("Tangent", 3, 1, 0, 1),
    Sketcher.Constraint("Vertical", 0),
    Sketcher.Constraint("Vertical", 2),
    Sketcher.Constraint("Radius", 1, Q("1.6 mm")),
    Sketcher.Constraint("DistanceY", 0, 2, 0, 1, Q("12 mm")),
    Sketcher.Constraint("DistanceY", 1, 3, -1, 1, Q("46.8 mm")),
    Sketcher.Constraint("DistanceX", -1, 1, 1, 3, Q("176.180608 mm")),
])
pocket11 = doc.addObject("PartDesign::Pocket", "Pocket010")
body.addObject(pocket11)
pocket11.Profile = sketch17
pocket11.Length = 1.2
pocket11.Reversed = True

sketch18 = doc.addObject("Sketcher::SketchObject", "Sketch017")
body.addObject(sketch18)
sketch18.AttachmentSupport = (doc.YZ_Plane, [""])
sketch18.MapMode = "FlatFace"
sketch18.AttachmentOffset = App.Placement(Vector(0, 0, -5.832812), App.Rotation())
sketch18.addGeometry([
    Part.LineSegment(Vector(21.2, -26.1, 0), Vector(18.2, -26.1, 0)),
    Part.LineSegment(Vector(18.2, -26.1, 0), Vector(18.2, -22.9, 0)),
    Part.LineSegment(Vector(18.2, -22.9, 0), Vector(21.2, -22.9, 0)),
    Part.ArcOfCircle(Part.Circle(Vector(21.2, -24.5, 0), Vector(0, 0, 1), 1.6), math.radians(-90), math.radians(90)),
], False)
sketch18.addConstraint([
    Sketcher.Constraint("Coincident", 0, 2, 1, 1),
    Sketcher.Constraint("Coincident", 1, 2, 2, 1),
    Sketcher.Constraint("Tangent", 2, 2, 3, 2),
    Sketcher.Constraint("Tangent", 3, 1, 0, 1),
    Sketcher.Constraint("Horizontal", 0),
    Sketcher.Constraint("Vertical", 1),
    Sketcher.Constraint("Horizontal", 2),
    Sketcher.Constraint("Radius", 3, Q("1.6 mm")),
    Sketcher.Constraint("DistanceX", 0, 2, 0, 1, Q("3 mm")),
    Sketcher.Constraint("DistanceY", 3, 3, -1, 1, Q("24.5 mm")),
    Sketcher.Constraint("DistanceX", -1, 1, 3, 3, Q("21.18105 mm")),
])
pocket12 = doc.addObject("PartDesign::Pocket", "Pocket011")
body.addObject(pocket12)
pocket12.Profile = sketch18
pocket12.Type = "UpToFirst"
pocket12.Reversed = True
doc.recompute()

fillet2 = doc.addObject("PartDesign::Fillet", "Fillet001")
body.addObject(fillet2)
fillet2.Base = (pocket12, edges_at(pocket12, [
    (6.667, 222.181, 0.6),
    (-5.233, 18.181, -32),
    (-5.233, 18.181, -7),
    (-5.233, 168.581, -38),
    (-5.233, 184.581, -38),
]))
fillet2.Radius = 1

doc.recompute()
